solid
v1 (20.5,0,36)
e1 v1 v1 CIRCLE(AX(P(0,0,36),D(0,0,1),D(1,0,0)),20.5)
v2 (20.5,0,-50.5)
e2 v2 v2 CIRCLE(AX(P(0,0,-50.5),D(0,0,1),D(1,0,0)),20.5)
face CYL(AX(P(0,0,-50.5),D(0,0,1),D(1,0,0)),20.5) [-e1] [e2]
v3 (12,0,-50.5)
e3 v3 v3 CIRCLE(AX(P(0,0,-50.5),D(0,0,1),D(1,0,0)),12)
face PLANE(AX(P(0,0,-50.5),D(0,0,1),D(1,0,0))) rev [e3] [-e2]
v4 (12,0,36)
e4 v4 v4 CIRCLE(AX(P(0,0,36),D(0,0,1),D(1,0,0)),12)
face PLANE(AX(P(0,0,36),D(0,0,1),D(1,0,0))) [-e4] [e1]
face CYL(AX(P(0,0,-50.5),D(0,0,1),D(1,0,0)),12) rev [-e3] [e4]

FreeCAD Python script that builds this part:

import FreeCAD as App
import Part
import Sketcher

V = App.Vector

doc = App.newDocument("Part")
body = doc.addObject("PartDesign::Body", "Body")

# Sketch on XY plane
sketch1 = body.newObject("Sketcher::SketchObject", "Sketch")
sketch1.AttachmentSupport = (doc.getObject("XY_Plane"), [""])
sketch1.MapMode = "FlatFace"
sketch1.addGeometry([
    Part.Circle(V(0, 0, 0), V(0, 0, 1), 20.5),
    Part.Circle(V(0, 0, 0), V(0, 0, 1), 12),
], False)
sketch1.addConstraint([
    Sketcher.Constraint("Coincident", 0, 3, -1, 1),
    Sketcher.Constraint("Coincident", 1, 3, -1, 1),
    Sketcher.Constraint("Diameter", 0, 41.0),
    Sketcher.Constraint("Diameter", 1, 24.0),
])
pad1 = body.newObject("PartDesign::Pad", "Pad")
pad1.Profile = sketch1
pad1.Type = "TwoLengths"
pad1.Length = 36
pad1.Length2 = 50.5

doc.recompute()
